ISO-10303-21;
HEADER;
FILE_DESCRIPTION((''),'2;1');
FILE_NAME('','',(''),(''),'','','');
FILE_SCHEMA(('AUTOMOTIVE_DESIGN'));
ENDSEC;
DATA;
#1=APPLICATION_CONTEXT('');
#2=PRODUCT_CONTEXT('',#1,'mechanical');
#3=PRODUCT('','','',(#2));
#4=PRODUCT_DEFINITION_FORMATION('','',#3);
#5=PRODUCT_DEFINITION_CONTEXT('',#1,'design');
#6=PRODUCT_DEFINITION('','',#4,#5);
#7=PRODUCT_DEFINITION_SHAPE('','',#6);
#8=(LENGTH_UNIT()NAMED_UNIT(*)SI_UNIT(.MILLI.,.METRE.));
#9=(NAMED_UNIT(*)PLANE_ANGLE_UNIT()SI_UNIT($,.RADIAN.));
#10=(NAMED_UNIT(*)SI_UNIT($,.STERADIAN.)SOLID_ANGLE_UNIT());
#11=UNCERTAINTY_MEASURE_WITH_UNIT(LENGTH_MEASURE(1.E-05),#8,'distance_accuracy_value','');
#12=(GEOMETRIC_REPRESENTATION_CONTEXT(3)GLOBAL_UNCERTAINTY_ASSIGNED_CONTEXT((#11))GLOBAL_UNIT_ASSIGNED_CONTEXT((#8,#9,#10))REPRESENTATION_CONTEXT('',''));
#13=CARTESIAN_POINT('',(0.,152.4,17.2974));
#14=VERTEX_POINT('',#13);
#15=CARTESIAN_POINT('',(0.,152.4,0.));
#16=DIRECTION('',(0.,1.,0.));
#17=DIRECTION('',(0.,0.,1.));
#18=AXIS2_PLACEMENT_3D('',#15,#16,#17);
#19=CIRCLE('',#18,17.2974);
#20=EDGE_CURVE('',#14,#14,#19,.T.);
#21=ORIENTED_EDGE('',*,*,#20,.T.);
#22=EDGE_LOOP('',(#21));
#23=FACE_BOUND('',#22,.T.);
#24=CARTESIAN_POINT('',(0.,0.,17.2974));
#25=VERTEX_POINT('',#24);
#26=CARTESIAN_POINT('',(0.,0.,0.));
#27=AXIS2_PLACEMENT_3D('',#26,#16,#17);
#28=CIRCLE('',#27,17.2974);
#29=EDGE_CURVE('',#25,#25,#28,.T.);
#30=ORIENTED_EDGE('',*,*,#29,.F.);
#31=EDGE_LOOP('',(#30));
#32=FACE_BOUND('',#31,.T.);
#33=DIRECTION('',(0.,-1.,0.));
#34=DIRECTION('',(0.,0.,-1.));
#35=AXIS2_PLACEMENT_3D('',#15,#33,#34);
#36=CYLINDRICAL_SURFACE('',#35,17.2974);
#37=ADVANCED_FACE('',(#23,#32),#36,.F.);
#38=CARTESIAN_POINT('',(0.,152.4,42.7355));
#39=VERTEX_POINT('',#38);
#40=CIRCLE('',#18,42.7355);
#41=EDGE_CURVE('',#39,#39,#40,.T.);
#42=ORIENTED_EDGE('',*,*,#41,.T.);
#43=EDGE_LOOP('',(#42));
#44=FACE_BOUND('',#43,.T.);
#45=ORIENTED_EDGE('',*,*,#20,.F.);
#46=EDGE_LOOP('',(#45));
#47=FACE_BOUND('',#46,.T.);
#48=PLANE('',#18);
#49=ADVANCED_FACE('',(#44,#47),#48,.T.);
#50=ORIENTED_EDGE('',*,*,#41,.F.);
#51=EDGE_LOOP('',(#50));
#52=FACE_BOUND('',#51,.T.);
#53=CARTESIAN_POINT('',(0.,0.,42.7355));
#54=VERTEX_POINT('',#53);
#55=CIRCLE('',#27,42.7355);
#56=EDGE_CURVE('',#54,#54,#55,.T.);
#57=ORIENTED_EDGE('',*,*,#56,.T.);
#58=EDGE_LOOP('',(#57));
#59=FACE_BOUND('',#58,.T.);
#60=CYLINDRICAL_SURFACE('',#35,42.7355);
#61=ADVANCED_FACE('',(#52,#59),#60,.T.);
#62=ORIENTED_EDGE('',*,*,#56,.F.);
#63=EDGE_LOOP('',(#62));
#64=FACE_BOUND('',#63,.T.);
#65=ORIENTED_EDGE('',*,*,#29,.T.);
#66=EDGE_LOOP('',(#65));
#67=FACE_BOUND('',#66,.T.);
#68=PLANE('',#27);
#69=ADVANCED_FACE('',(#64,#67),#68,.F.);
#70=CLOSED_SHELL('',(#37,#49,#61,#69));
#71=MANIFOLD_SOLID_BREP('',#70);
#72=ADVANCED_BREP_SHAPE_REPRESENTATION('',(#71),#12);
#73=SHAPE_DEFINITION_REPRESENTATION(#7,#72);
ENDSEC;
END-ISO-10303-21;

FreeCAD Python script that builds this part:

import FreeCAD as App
import Part
import Sketcher

V = App.Vector
Q = App.Units.Quantity

doc = App.newDocument("Part")
body = doc.addObject("PartDesign::Body", "Body")

# Sketch on XZ plane
sketch1 = body.newObject("Sketcher::SketchObject", "Sketch")
sketch1.AttachmentSupport = (doc.getObject("XZ_Plane"), [""])
sketch1.MapMode = "FlatFace"
sketch1.addGeometry(Part.Circle(V(0, 0, 0), V(0, 0, 1), 43), False)
sketch1.addGeometry(Part.Circle(V(0, 0, 0), V(0, 0, 1), 17), False)
sketch1.addConstraint(Sketcher.Constraint("Coincident", 0, 3, -1, 1))
sketch1.addConstraint(Sketcher.Constraint("Coincident", 1, 3, -1, 1))
sketch1.addConstraint(Sketcher.Constraint("Diameter", 0, Q("3.365 in")))
sketch1.addConstraint(Sketcher.Constraint("Diameter", 1, Q("1.362 in")))
pad1 = body.newObject("PartDesign::Pad", "Pad")
pad1.Profile = sketch1
pad1.Length = Q("6 in")
pad1.Reversed = True

doc.recompute()
